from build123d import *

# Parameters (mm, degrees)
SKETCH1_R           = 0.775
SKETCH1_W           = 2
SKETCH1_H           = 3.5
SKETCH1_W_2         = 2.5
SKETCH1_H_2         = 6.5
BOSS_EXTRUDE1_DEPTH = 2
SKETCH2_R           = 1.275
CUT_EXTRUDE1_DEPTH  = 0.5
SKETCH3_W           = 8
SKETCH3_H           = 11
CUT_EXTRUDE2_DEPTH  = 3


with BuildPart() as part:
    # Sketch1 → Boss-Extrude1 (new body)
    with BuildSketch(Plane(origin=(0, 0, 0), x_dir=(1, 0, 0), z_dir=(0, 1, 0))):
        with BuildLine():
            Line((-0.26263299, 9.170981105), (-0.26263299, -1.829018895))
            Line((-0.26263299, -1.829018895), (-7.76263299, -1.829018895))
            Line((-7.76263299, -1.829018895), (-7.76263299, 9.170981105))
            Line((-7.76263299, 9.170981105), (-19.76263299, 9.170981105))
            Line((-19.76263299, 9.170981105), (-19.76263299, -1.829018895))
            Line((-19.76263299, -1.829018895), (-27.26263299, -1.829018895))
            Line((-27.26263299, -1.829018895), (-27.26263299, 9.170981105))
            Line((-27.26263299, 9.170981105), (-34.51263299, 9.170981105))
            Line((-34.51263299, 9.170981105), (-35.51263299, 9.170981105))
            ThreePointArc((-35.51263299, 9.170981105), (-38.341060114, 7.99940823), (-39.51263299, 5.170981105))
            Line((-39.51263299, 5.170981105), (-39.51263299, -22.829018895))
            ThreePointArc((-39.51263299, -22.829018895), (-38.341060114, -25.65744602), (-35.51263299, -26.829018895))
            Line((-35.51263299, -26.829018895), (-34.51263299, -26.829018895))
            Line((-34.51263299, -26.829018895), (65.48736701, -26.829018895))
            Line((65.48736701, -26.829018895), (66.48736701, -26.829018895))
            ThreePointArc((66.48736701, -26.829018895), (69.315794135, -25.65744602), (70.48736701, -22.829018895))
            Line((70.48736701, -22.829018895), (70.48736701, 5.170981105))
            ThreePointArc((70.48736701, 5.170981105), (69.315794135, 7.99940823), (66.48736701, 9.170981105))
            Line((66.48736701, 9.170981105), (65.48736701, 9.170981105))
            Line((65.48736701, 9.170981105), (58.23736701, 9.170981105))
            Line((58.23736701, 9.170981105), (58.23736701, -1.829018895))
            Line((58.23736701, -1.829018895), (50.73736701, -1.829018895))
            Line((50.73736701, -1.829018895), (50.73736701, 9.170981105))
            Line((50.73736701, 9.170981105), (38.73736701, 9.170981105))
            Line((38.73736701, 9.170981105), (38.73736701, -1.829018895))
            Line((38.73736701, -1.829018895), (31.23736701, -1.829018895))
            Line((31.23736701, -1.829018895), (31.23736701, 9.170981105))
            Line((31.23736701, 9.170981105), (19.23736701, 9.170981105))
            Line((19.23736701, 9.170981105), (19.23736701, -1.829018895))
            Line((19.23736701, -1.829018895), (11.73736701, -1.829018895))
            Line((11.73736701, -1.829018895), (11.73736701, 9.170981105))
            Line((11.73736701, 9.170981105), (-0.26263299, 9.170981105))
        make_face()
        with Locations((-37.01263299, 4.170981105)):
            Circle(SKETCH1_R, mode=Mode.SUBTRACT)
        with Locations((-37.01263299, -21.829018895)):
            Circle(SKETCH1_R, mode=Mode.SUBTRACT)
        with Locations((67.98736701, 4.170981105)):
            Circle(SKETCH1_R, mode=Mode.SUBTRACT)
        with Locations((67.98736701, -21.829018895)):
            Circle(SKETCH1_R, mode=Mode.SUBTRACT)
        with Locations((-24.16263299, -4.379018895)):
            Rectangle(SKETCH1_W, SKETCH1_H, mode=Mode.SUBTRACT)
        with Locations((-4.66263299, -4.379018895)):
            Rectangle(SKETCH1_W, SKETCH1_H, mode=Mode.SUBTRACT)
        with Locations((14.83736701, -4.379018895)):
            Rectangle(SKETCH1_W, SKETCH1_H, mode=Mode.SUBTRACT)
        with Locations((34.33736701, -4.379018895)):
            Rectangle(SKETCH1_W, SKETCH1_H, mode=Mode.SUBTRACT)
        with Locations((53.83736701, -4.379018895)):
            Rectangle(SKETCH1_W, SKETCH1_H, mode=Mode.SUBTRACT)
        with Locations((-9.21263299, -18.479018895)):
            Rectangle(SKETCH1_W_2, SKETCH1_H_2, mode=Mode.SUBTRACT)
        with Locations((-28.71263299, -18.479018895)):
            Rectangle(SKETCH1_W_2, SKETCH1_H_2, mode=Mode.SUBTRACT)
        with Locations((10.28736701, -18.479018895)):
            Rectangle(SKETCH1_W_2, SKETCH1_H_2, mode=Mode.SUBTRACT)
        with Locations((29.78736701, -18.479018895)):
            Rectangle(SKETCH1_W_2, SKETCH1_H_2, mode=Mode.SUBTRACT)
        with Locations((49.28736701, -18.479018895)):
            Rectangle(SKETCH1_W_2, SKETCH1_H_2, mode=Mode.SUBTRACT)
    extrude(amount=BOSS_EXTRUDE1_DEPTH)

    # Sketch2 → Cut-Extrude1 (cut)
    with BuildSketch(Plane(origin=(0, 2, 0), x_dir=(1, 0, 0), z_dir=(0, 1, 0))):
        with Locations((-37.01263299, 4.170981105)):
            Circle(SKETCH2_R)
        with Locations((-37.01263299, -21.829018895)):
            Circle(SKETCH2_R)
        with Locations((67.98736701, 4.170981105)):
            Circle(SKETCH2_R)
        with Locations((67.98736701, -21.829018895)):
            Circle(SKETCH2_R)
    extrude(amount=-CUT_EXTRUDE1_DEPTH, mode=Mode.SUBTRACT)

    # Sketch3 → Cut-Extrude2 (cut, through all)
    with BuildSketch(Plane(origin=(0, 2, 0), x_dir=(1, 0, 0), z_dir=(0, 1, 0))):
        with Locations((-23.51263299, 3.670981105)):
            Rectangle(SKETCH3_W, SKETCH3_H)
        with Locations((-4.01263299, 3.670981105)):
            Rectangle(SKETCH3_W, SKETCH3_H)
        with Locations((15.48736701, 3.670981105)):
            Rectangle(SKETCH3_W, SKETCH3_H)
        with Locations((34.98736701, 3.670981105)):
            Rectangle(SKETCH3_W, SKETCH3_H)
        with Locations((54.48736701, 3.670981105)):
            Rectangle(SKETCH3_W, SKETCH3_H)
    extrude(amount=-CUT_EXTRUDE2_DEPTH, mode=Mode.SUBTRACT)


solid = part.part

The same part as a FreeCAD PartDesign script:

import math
import FreeCAD as App
import Part
import Sketcher

V = App.Vector
Q = App.Units.Quantity


def add_polygon(sketch, points):
    """Adds a closed chain of lines whose ends are joined by coincident constraints."""
    first, n = sketch.GeometryCount, len(points)
    for a, b in zip(points, points[1:] + points[:1]):
        sketch.addGeometry(Part.LineSegment(App.Vector(*a, 0), App.Vector(*b, 0)), False)
    for i in range(n):
        sketch.addConstraint(Sketcher.Constraint("Coincident", first + i, 2, first + (i + 1) % n, 1))

doc = App.newDocument("Part")
body = doc.addObject("PartDesign::Body", "Body")

# Sketch on XZ plane
sketch1 = body.newObject("Sketcher::SketchObject", "Sketch")
sketch1.AttachmentSupport = (doc.getObject("XZ_Plane"), [""])
sketch1.MapMode = "FlatFace"
sketch1.addGeometry(Part.LineSegment(V(-0.262633, -9.170981, 0), V(-0.262633, 1.829019, 0)), False)  # 0
sketch1.addGeometry(Part.LineSegment(V(-0.262633, 1.829019, 0), V(-7.762633, 1.829019, 0)), False)  # 1
sketch1.addGeometry(Part.LineSegment(V(-7.762633, 1.829019, 0), V(-7.762633, -9.170981, 0)), False)  # 2
sketch1.addGeometry(Part.LineSegment(V(-7.762633, -9.170981, 0), V(-19.762633, -9.170981, 0)), False)  # 3
sketch1.addGeometry(Part.LineSegment(V(-19.762633, -9.170981, 0), V(-19.762633, 1.829019, 0)), False)  # 4
sketch1.addGeometry(Part.LineSegment(V(-19.762633, 1.829019, 0), V(-27.262633, 1.829019, 0)), False)  # 5
sketch1.addGeometry(Part.LineSegment(V(-27.262633, 1.829019, 0), V(-27.262633, -9.170981, 0)), False)  # 6
sketch1.addGeometry(Part.LineSegment(V(-27.262633, -9.170981, 0), V(-35.512633, -9.170981, 0)), False)  # 7
sketch1.addGeometry(Part.ArcOfCircle(Part.Circle(V(-35.512633, -5.170981, 0), V(0, 0, 1), 4), math.radians(-180), math.radians(-90)), False)  # 8
sketch1.addGeometry(Part.LineSegment(V(-39.512633, -5.170981, 0), V(-39.512633, 22.829019, 0)), False)  # 9
sketch1.addGeometry(Part.ArcOfCircle(Part.Circle(V(-35.512633, 22.829019, 0), V(0, 0, 1), 4), math.radians(90), math.radians(180)), False)  # 10
sketch1.addGeometry(Part.LineSegment(V(-35.512633, 26.829019, 0), V(66.487367, 26.829019, 0)), False)  # 11
sketch1.addGeometry(Part.ArcOfCircle(Part.Circle(V(66.487367, 22.829019, 0), V(0, 0, 1), 4), math.radians(0), math.radians(90)), False)  # 12
sketch1.addGeometry(Part.LineSegment(V(70.487367, 22.829019, 0), V(70.487367, -5.170981, 0)), False)  # 13
sketch1.addGeometry(Part.ArcOfCircle(Part.Circle(V(66.487367, -5.170981, 0), V(0, 0, 1), 4), math.radians(-90), math.radians(0)), False)  # 14
sketch1.addGeometry(Part.LineSegment(V(66.487367, -9.170981, 0), V(58.237367, -9.170981, 0)), False)  # 15
sketch1.addGeometry(Part.LineSegment(V(58.237367, -9.170981, 0), V(58.237367, 1.829019, 0)), False)  # 16
sketch1.addGeometry(Part.LineSegment(V(58.237367, 1.829019, 0), V(50.737367, 1.829019, 0)), False)  # 17
sketch1.addGeometry(Part.LineSegment(V(50.737367, 1.829019, 0), V(50.737367, -9.170981, 0)), False)  # 18
sketch1.addGeometry(Part.LineSegment(V(50.737367, -9.170981, 0), V(38.737367, -9.170981, 0)), False)  # 19
sketch1.addGeometry(Part.LineSegment(V(38.737367, -9.170981, 0), V(38.737367, 1.829019, 0)), False)  # 20
sketch1.addGeometry(Part.LineSegment(V(38.737367, 1.829019, 0), V(31.237367, 1.829019, 0)), False)  # 21
sketch1.addGeometry(Part.LineSegment(V(31.237367, 1.829019, 0), V(31.237367, -9.170981, 0)), False)  # 22
sketch1.addGeometry(Part.LineSegment(V(31.237367, -9.170981, 0), V(19.237367, -9.170981, 0)), False)  # 23
sketch1.addGeometry(Part.LineSegment(V(19.237367, -9.170981, 0), V(19.237367, 1.829019, 0)), False)  # 24
sketch1.addGeometry(Part.LineSegment(V(19.237367, 1.829019, 0), V(11.737367, 1.829019, 0)), False)  # 25
sketch1.addGeometry(Part.LineSegment(V(11.737367, 1.829019, 0), V(11.737367, -9.170981, 0)), False)  # 26
sketch1.addGeometry(Part.LineSegment(V(11.737367, -9.170981, 0), V(-0.262633, -9.170981, 0)), False)  # 27
sketch1.addGeometry(Part.Circle(V(-37.012633, 21.829019, 0), V(0, 0, 1), 0.775), False)  # 28
add_polygon(sketch1, [(-27.462633, 21.729019), (-29.962633, 21.729019), (-29.962633, 15.229019), (-27.462633, 15.229019)])  # lines 29-32
add_polygon(sketch1, [(-7.962633, 21.729019), (-10.462633, 21.729019), (-10.462633, 15.229019), (-7.962633, 15.229019)])  # lines 33-36
add_polygon(sketch1, [(11.537367, 21.729019), (9.037367, 21.729019), (9.037367, 15.229019), (11.537367, 15.229019)])  # lines 37-40
add_polygon(sketch1, [(31.037367, 21.729019), (28.537367, 21.729019), (28.537367, 15.229019), (31.037367, 15.229019)])  # lines 41-44
sketch1.addGeometry(Part.Circle(V(67.987367, 21.829019, 0), V(0, 0, 1), 0.775), False)  # 45
add_polygon(sketch1, [(50.537367, 21.729019), (48.037367, 21.729019), (48.037367, 15.229019), (50.537367, 15.229019)])  # lines 46-49
add_polygon(sketch1, [(-23.162633, 6.129019), (-25.162633, 6.129019), (-25.162633, 2.629019), (-23.162633, 2.629019)])  # lines 50-53
add_polygon(sketch1, [(-3.662633, 6.129019), (-5.662633, 6.129019), (-5.662633, 2.629019), (-3.662633, 2.629019)])  # lines 54-57
add_polygon(sketch1, [(15.837367, 6.129019), (13.837367, 6.129019), (13.837367, 2.629019), (15.837367, 2.629019)])  # lines 58-61
sketch1.addGeometry(Part.Circle(V(-37.012633, -4.170981, 0), V(0, 0, 1), 0.775), False)  # 62
add_polygon(sketch1, [(35.337367, 6.129019), (33.337367, 6.129019), (33.337367, 2.629019), (35.337367, 2.629019)])  # lines 63-66
add_polygon(sketch1, [(54.837367, 6.129019), (52.837367, 6.129019), (52.837367, 2.629019), (54.837367, 2.629019)])  # lines 67-70
sketch1.addGeometry(Part.Circle(V(67.987367, -4.170981, 0), V(0, 0, 1), 0.775), False)  # 71
sketch1.addConstraint([
    Sketcher.Constraint("Coincident", 0, 2, 1, 1),
    Sketcher.Constraint("Coincident", 1, 2, 2, 1),
    Sketcher.Constraint("Coincident", 2, 2, 3, 1),
    Sketcher.Constraint("Coincident", 3, 2, 4, 1),
    Sketcher.Constraint("Coincident", 4, 2, 5, 1),
    Sketcher.Constraint("Coincident", 5, 2, 6, 1),
    Sketcher.Constraint("Coincident", 6, 2, 7, 1),
    Sketcher.Constraint("Tangent", 7, 2, 8, 2),
    Sketcher.Constraint("Tangent", 8, 1, 9, 1),
    Sketcher.Constraint("Tangent", 9, 2, 10, 2),
    Sketcher.Constraint("Tangent", 10, 1, 11, 1),
    Sketcher.Constraint("Tangent", 11, 2, 12, 2),
    Sketcher.Constraint("Tangent", 12, 1, 13, 1),
    Sketcher.Constraint("Tangent", 13, 2, 14, 2),
    Sketcher.Constraint("Tangent", 14, 1, 15, 1),
    Sketcher.Constraint("Coincident", 15, 2, 16, 1),
    Sketcher.Constraint("Coincident", 16, 2, 17, 1),
    Sketcher.Constraint("Coincident", 17, 2, 18, 1),
    Sketcher.Constraint("Coincident", 18, 2, 19, 1),
    Sketcher.Constraint("Coincident", 19, 2, 20, 1),
    Sketcher.Constraint("Coincident", 20, 2, 21, 1),
    Sketcher.Constraint("Coincident", 21, 2, 22, 1),
    Sketcher.Constraint("Coincident", 22, 2, 23, 1),
    Sketcher.Constraint("Coincident", 23, 2, 24, 1),
    Sketcher.Constraint("Coincident", 24, 2, 25, 1),
    Sketcher.Constraint("Coincident", 25, 2, 26, 1),
    Sketcher.Constraint("Coincident", 26, 2, 27, 1),
    Sketcher.Constraint("Coincident", 27, 2, 0, 1),
    Sketcher.Constraint("Vertical", 0),
    Sketcher.Constraint("Horizontal", 1),
    Sketcher.Constraint("Vertical", 2),
    Sketcher.Constraint("Horizontal", 3),
    Sketcher.Constraint("Vertical", 4),
    Sketcher.Constraint("Horizontal", 5),
    Sketcher.Constraint("Vertical", 6),
    Sketcher.Constraint("Horizontal", 7),
    Sketcher.Constraint("Vertical", 9),
    Sketcher.Constraint("Horizontal", 11),
    Sketcher.Constraint("Vertical", 13),
    Sketcher.Constraint("Horizontal", 15),
    Sketcher.Constraint("Vertical", 16),
    Sketcher.Constraint("Horizontal", 17),
    Sketcher.Constraint("Vertical", 18),
    Sketcher.Constraint("Horizontal", 19),
    Sketcher.Constraint("Vertical", 20),
    Sketcher.Constraint("Horizontal", 21),
    Sketcher.Constraint("Vertical", 22),
    Sketcher.Constraint("Horizontal", 23),
    Sketcher.Constraint("Vertical", 24),
    Sketcher.Constraint("Horizontal", 25),
    Sketcher.Constraint("Vertical", 26),
    Sketcher.Constraint("Horizontal", 27),
    Sketcher.Constraint("Horizontal", 29),
    Sketcher.Constraint("Vertical", 30),
    Sketcher.Constraint("Horizontal", 31),
    Sketcher.Constraint("Vertical", 32),
    Sketcher.Constraint("Horizontal", 33),
    Sketcher.Constraint("Vertical", 34),
    Sketcher.Constraint("Horizontal", 35),
    Sketcher.Constraint("Vertical", 36),
    Sketcher.Constraint("Horizontal", 37),
    Sketcher.Constraint("Vertical", 38),
    Sketcher.Constraint("Horizontal", 39),
    Sketcher.Constraint("Vertical", 40),
    Sketcher.Constraint("Horizontal", 41),
    Sketcher.Constraint("Vertical", 42),
    Sketcher.Constraint("Horizontal", 43),
    Sketcher.Constraint("Vertical", 44),
    Sketcher.Constraint("Horizontal", 46),
    Sketcher.Constraint("Vertical", 47),
    Sketcher.Constraint("Horizontal", 48),
    Sketcher.Constraint("Vertical", 49),
    Sketcher.Constraint("Horizontal", 50),
    Sketcher.Constraint("Vertical", 51),
    Sketcher.Constraint("Horizontal", 52),
    Sketcher.Constraint("Vertical", 53),
    Sketcher.Constraint("Horizontal", 54),
    Sketcher.Constraint("Vertical", 55),
    Sketcher.Constraint("Horizontal", 56),
    Sketcher.Constraint("Vertical", 57),
    Sketcher.Constraint("Horizontal", 58),
    Sketcher.Constraint("Vertical", 59),
    Sketcher.Constraint("Horizontal", 60),
    Sketcher.Constraint("Vertical", 61),
    Sketcher.Constraint("Horizontal", 63),
    Sketcher.Constraint("Vertical", 64),
    Sketcher.Constraint("Horizontal", 65),
    Sketcher.Constraint("Vertical", 66),
    Sketcher.Constraint("Horizontal", 67),
    Sketcher.Constraint("Vertical", 68),
    Sketcher.Constraint("Horizontal", 69),
    Sketcher.Constraint("Vertical", 70),
    Sketcher.Constraint("Equal", 8, 10),
    Sketcher.Constraint("Equal", 10, 12),
    Sketcher.Constraint("Equal", 12, 14),
    Sketcher.Constraint("Equal", 28, 45),
    Sketcher.Constraint("Equal", 45, 62),
    Sketcher.Constraint("Equal", 62, 71),
    Sketcher.Constraint("Horizontal", 8, 3, 14, 3),
    Sketcher.Constraint("Horizontal", 28, 3, 45, 3),
    Sketcher.Constraint("Horizontal", 62, 3, 71, 3),
    Sketcher.Constraint("Horizontal", 1, 2, 4, 2),
    Sketcher.Constraint("Horizontal", 3, 2, 6, 2),
    Sketcher.Constraint("Horizontal", 5, 2, 16, 2),
    Sketcher.Constraint("Horizontal", 15, 2, 18, 2),
    Sketcher.Constraint("Horizontal", 17, 2, 20, 2),
    Sketcher.Constraint("Horizontal", 19, 2, 22, 2),
    Sketcher.Constraint("Horizontal", 21, 2, 24, 2),
    Sketcher.Constraint("Horizontal", 23, 2, 26, 2),
    Sketcher.Constraint("Horizontal", 32, 2, 33, 2),
    Sketcher.Constraint("Horizontal", 31, 2, 34, 2),
    Sketcher.Constraint("Horizontal", 36, 2, 37, 2),
    Sketcher.Constraint("Horizontal", 35, 2, 38, 2),
    Sketcher.Constraint("Horizontal", 40, 2, 41, 2),
    Sketcher.Constraint("Horizontal", 39, 2, 42, 2),
    Sketcher.Constraint("Horizontal", 44, 2, 46, 2),
    Sketcher.Constraint("Horizontal", 43, 2, 47, 2),
    Sketcher.Constraint("Horizontal", 53, 2, 54, 2),
    Sketcher.Constraint("Horizontal", 52, 2, 55, 2),
    Sketcher.Constraint("Horizontal", 57, 2, 58, 2),
    Sketcher.Constraint("Horizontal", 56, 2, 59, 2),
    Sketcher.Constraint("Horizontal", 61, 2, 63, 2),
    Sketcher.Constraint("Horizontal", 60, 2, 64, 2),
    Sketcher.Constraint("Horizontal", 66, 2, 67, 2),
    Sketcher.Constraint("Horizontal", 65, 2, 68, 2),
    Sketcher.Constraint("Vertical", 28, 3, 62, 3),
    Sketcher.Constraint("Vertical", 45, 3, 71, 3),
    Sketcher.Constraint("Equal", 1, 5),
    Sketcher.Constraint("Equal", 7, 15),
    Sketcher.Constraint("Equal", 5, 17),
    Sketcher.Constraint("Equal", 3, 19),
    Sketcher.Constraint("Equal", 17, 21),
    Sketcher.Constraint("Equal", 19, 23),
    Sketcher.Constraint("Equal", 21, 25),
    Sketcher.Constraint("Equal", 23, 27),
    Sketcher.Constraint("Equal", 31, 33),
    Sketcher.Constraint("Equal", 35, 37),
    Sketcher.Constraint("Equal", 39, 41),
    Sketcher.Constraint("Equal", 43, 46),
    Sketcher.Constraint("Equal", 52, 54),
    Sketcher.Constraint("Equal", 56, 58),
    Sketcher.Constraint("Equal", 60, 63),
    Sketcher.Constraint("Equal", 65, 67),
    Sketcher.Constraint("Radius", 8, Q("4 mm")),
    Sketcher.Constraint("Diameter", 28, Q("1.55 mm")),
    Sketcher.Constraint("DistanceX", 3, 2, 3, 1, Q("12 mm")),
    Sketcher.Constraint("DistanceX", 11, 1, 11, 2, Q("102 mm")),
    Sketcher.Constraint("DistanceX", 50, 2, 50, 1, Q("2 mm")),
    Sketcher.Constraint("DistanceY", 0, 1, 0, 2, Q("11 mm")),
    Sketcher.Constraint("DistanceY", 9, 1, 9, 2, Q("28 mm")),
    Sketcher.Constraint("DistanceX", 1, 2, 1, 1, Q("7.5 mm")),
    Sketcher.Constraint("DistanceX", 29, 2, 29, 1, Q("2.5 mm")),
    Sketcher.Constraint("DistanceY", 30, 2, 30, 1, Q("6.5 mm")),
    Sketcher.Constraint("DistanceY", 51, 2, 51, 1, Q("3.5 mm")),
    Sketcher.Constraint("DistanceY", 8, 3, -1, 1, Q("5.170981 mm")),
    Sketcher.Constraint("DistanceY", -1, 1, 28, 3, Q("21.829019 mm")),
    Sketcher.Constraint("DistanceY", 62, 3, -1, 1, Q("4.170981 mm")),
    Sketcher.Constraint("DistanceY", -1, 1, 29, 2, Q("21.729019 mm")),
    Sketcher.Constraint("DistanceY", -1, 1, 50, 2, Q("6.129019 mm")),
    Sketcher.Constraint("DistanceX", 8, 3, -1, 1, Q("35.512633 mm")),
    Sketcher.Constraint("DistanceX", 28, 3, -1, 1, Q("37.012633 mm")),
    Sketcher.Constraint("DistanceX", -1, 1, 45, 3, Q("67.987367 mm")),
    Sketcher.Constraint("DistanceX", 29, 2, -1, 1, Q("29.962633 mm")),
    Sketcher.Constraint("DistanceX", 33, 2, -1, 1, Q("10.462633 mm")),
    Sketcher.Constraint("DistanceX", -1, 1, 37, 2, Q("9.037367 mm")),
    Sketcher.Constraint("DistanceX", -1, 1, 41, 2, Q("28.537367 mm")),
    Sketcher.Constraint("DistanceX", -1, 1, 46, 2, Q("48.037367 mm")),
    Sketcher.Constraint("DistanceX", 50, 2, -1, 1, Q("25.162633 mm")),
    Sketcher.Constraint("DistanceX", 54, 2, -1, 1, Q("5.662633 mm")),
    Sketcher.Constraint("DistanceX", -1, 1, 58, 2, Q("13.837367 mm")),
    Sketcher.Constraint("DistanceX", -1, 1, 63, 2, Q("33.337367 mm")),
    Sketcher.Constraint("DistanceX", -1, 1, 67, 2, Q("52.837367 mm")),
])
pad1 = body.newObject("PartDesign::Pad", "Pad")
pad1.Profile = sketch1
pad1.Length = 2
pad1.Reversed = True

# Sketch on XZ plane
sketch2 = body.newObject("Sketcher::SketchObject", "Sketch001")
sketch2.AttachmentSupport = (doc.getObject("XZ_Plane"), [""])
sketch2.MapMode = "FlatFace"
sketch2.AttachmentOffset = App.Placement(V(0, 0, -2), App.Rotation())
sketch2.addGeometry([
    Part.Circle(V(-37.012633, -4.170981, 0), V(0, 0, 1), 1.275),
    Part.Circle(V(-37.012633, 21.829019, 0), V(0, 0, 1), 1.275),
    Part.Circle(V(67.987367, -4.170981, 0), V(0, 0, 1), 1.275),
    Part.Circle(V(67.987367, 21.829019, 0), V(0, 0, 1), 1.275),
], False)
sketch2.addConstraint([
    Sketcher.Constraint("Equal", 0, 1),
    Sketcher.Constraint("Equal", 1, 2),
    Sketcher.Constraint("Equal", 2, 3),
    Sketcher.Constraint("Horizontal", 0, 3, 2, 3),
    Sketcher.Constraint("Horizontal", 1, 3, 3, 3),
    Sketcher.Constraint("Vertical", 0, 3, 1, 3),
    Sketcher.Constraint("Vertical", 2, 3, 3, 3),
    Sketcher.Constraint("Diameter", 0, Q("2.55 mm")),
    Sketcher.Constraint("DistanceY", 0, 3, 1, 3, Q("26 mm")),
    Sketcher.Constraint("DistanceX", 0, 3, 2, 3, Q("105 mm")),
    Sketcher.Constraint("DistanceY", 0, 3, -1, 1, Q("4.170981 mm")),
    Sketcher.Constraint("DistanceX", 0, 3, -1, 1, Q("37.012633 mm")),
])
pocket1 = body.newObject("PartDesign::Pocket", "Pocket")
pocket1.Profile = sketch2
pocket1.Length = 0.5
pocket1.Reversed = True

# Sketch on XZ plane
sketch3 = body.newObject("Sketcher::SketchObject", "Sketch002")
sketch3.AttachmentSupport = (doc.getObject("XZ_Plane"), [""])
sketch3.MapMode = "FlatFace"
sketch3.AttachmentOffset = App.Placement(V(0, 0, -2), App.Rotation())
add_polygon(sketch3, [(-27.512633, -9.170981), (-27.512633, 1.829019), (-19.512633, 1.829019), (-19.512633, -9.170981)])  # lines 0-3
add_polygon(sketch3, [(-8.012633, -9.170981), (-8.012633, 1.829019), (-0.012633, 1.829019), (-0.012633, -9.170981)])  # lines 4-7
add_polygon(sketch3, [(11.487367, -9.170981), (11.487367, 1.829019), (19.487367, 1.829019), (19.487367, -9.170981)])  # lines 8-11
add_polygon(sketch3, [(30.987367, -9.170981), (30.987367, 1.829019), (38.987367, 1.829019), (38.987367, -9.170981)])  # lines 12-15
add_polygon(sketch3, [(50.487367, -9.170981), (50.487367, 1.829019), (58.487367, 1.829019), (58.487367, -9.170981)])  # lines 16-19
sketch3.addConstraint([
    Sketcher.Constraint("Vertical", 0),
    Sketcher.Constraint("Horizontal", 1),
    Sketcher.Constraint("Vertical", 2),
    Sketcher.Constraint("Horizontal", 3),
    Sketcher.Constraint("Vertical", 4),
    Sketcher.Constraint("Horizontal", 5),
    Sketcher.Constraint("Vertical", 6),
    Sketcher.Constraint("Horizontal", 7),
    Sketcher.Constraint("Vertical", 8),
    Sketcher.Constraint("Horizontal", 9),
    Sketcher.Constraint("Vertical", 10),
    Sketcher.Constraint("Horizontal", 11),
    Sketcher.Constraint("Vertical", 12),
    Sketcher.Constraint("Horizontal", 13),
    Sketcher.Constraint("Vertical", 14),
    Sketcher.Constraint("Horizontal", 15),
    Sketcher.Constraint("Vertical", 16),
    Sketcher.Constraint("Horizontal", 17),
    Sketcher.Constraint("Vertical", 18),
    Sketcher.Constraint("Horizontal", 19),
    Sketcher.Constraint("Horizontal", 1, 2, 4, 2),
    Sketcher.Constraint("Horizontal", 3, 2, 6, 2),
    Sketcher.Constraint("Horizontal", 5, 2, 8, 2),
    Sketcher.Constraint("Horizontal", 7, 2, 10, 2),
    Sketcher.Constraint("Horizontal", 9, 2, 12, 2),
    Sketcher.Constraint("Horizontal", 11, 2, 14, 2),
    Sketcher.Constraint("Horizontal", 13, 2, 16, 2),
    Sketcher.Constraint("Horizontal", 15, 2, 18, 2),
    Sketcher.Constraint("Equal", 3, 5),
    Sketcher.Constraint("Equal", 7, 9),
    Sketcher.Constraint("Equal", 11, 13),
    Sketcher.Constraint("Equal", 15, 17),
    Sketcher.Constraint("DistanceX", 1, 1, 1, 2, Q("8 mm")),
    Sketcher.Constraint("DistanceY", 0, 1, 0, 2, Q("11 mm")),
    Sketcher.Constraint("DistanceX", 1, 2, 8, 2, Q("31 mm")),
    Sketcher.Constraint("DistanceX", 5, 2, 12, 2, Q("31 mm")),
    Sketcher.Constraint("DistanceX", 9, 2, 16, 2, Q("31 mm")),
    Sketcher.Constraint("DistanceX", 1, 2, 4, 2, Q("11.5 mm")),
    Sketcher.Constraint("DistanceY", -1, 1, 0, 2, Q("1.829019 mm")),
    Sketcher.Constraint("DistanceX", 0, 2, -1, 1, Q("27.512633 mm")),
])
pocket2 = body.newObject("PartDesign::Pocket", "Pocket001")
pocket2.Profile = sketch3
pocket2.Type = "ThroughAll"
pocket2.Reversed = True

doc.recompute()
